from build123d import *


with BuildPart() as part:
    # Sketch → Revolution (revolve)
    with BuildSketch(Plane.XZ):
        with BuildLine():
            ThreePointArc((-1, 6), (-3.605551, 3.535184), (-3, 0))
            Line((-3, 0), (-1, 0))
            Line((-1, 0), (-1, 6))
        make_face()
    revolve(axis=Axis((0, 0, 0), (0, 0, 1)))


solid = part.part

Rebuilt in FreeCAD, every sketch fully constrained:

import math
import FreeCAD as App
import Part
import Sketcher
from FreeCAD import Vector

doc = App.newDocument("Part")
body = doc.addObject("PartDesign::Body", "Body")

# Sketch on XZ plane
sketch1 = body.newObject("Sketcher::SketchObject", "Sketch")
sketch1.AttachmentSupport = (doc.getObject("XZ_Plane"), [""])
sketch1.MapMode = "FlatFace"
sketch1.addGeometry([
    Part.ArcOfCircle(Part.Circle(Vector(0, 2.333333, 0), Vector(0, 0, 1), 3.800585), math.radians(105.255124), math.radians(217.874978)),
    Part.LineSegment(Vector(-3, 0, 0), Vector(-1, 0, 0)),
    Part.LineSegment(Vector(-1, 0, 0), Vector(-1, 6, 0)),
], False)
sketch1.addConstraint([
    Sketcher.Constraint("Coincident", 0, 2, 1, 1),
    Sketcher.Constraint("Coincident", 1, 2, 2, 1),
    Sketcher.Constraint("Coincident", 2, 2, 0, 1),
    Sketcher.Constraint("Horizontal", 1),
    Sketcher.Constraint("Vertical", 2),
    Sketcher.Constraint("PointOnObject", 0, 3, -2),
    Sketcher.Constraint("PointOnObject", 0, 2, -1),
    Sketcher.Constraint("DistanceX", 1, 1, 1, 2, 2.0),
    Sketcher.Constraint("DistanceY", 2, 1, 2, 2, 6.0),
    Sketcher.Constraint("DistanceX", 0, 2, -1, 1, 3.0),
])
revolution = body.newObject("PartDesign::Revolution", "Revolution")
revolution.Profile = sketch1
revolution.ReferenceAxis = (sketch1, ["V_Axis"])
revolution.Angle = 360

doc.recompute()
